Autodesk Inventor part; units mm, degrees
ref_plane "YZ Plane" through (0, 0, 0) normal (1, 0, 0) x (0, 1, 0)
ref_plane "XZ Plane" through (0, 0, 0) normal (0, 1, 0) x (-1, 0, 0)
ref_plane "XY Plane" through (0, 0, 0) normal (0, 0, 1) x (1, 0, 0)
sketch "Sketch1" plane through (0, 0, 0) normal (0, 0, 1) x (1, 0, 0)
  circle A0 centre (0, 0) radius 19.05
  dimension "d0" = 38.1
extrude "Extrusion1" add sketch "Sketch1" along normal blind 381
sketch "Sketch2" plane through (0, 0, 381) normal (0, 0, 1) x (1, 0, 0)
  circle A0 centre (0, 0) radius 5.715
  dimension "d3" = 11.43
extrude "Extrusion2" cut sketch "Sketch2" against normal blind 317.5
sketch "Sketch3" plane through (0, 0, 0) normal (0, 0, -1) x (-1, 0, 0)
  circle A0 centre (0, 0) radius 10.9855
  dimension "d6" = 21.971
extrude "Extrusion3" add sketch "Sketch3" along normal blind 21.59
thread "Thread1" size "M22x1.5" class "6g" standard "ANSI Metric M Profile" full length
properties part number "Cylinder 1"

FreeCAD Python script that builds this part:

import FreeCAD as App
import Part
import Sketcher
Q = App.Units.Quantity

doc = App.newDocument("Part")
body = doc.addObject("PartDesign::Body", "Body")

sketch1 = body.newObject("Sketcher::SketchObject", "Sketch")
sketch1.AttachmentSupport = (doc.getObject("XY_Plane"), [""])
sketch1.MapMode = "FlatFace"
sketch1.addGeometry(Part.Circle(App.Vector(0, 0, 0), App.Vector(0, 0, 1), 19), False)
sketch1.addConstraint([
    Sketcher.Constraint("Coincident", 0, 3, -1, 1),
    Sketcher.Constraint("Diameter", 0, Q("1.5 in")),
])
pad1 = body.newObject("PartDesign::Pad", "Pad")
pad1.Profile = sketch1
pad1.Length = Q("15 in")

sketch2 = body.newObject("Sketcher::SketchObject", "Sketch001")
sketch2.AttachmentSupport = (doc.getObject("XY_Plane"), [""])
sketch2.MapMode = "FlatFace"
sketch2.AttachmentOffset = App.Placement(App.Vector(0, 0, 15 * 25.4), App.Rotation())
sketch2.addGeometry(Part.Circle(App.Vector(0, 0, 0), App.Vector(0, 0, 1), 6), False)
sketch2.addConstraint([
    Sketcher.Constraint("Coincident", 0, 3, -1, 1),
    Sketcher.Constraint("Diameter", 0, Q("0.45 in")),
])
pocket1 = body.newObject("PartDesign::Pocket", "Pocket")
pocket1.Profile = sketch2
pocket1.Length = Q("12.5 in")

sketch3 = body.newObject("Sketcher::SketchObject", "Sketch002")
sketch3.AttachmentSupport = (doc.getObject("XY_Plane"), [""])
sketch3.MapMode = "FlatFace"
sketch3.addGeometry(Part.Circle(App.Vector(0, 0, 0), App.Vector(0, 0, 1), 11), False)
sketch3.addConstraint([
    Sketcher.Constraint("Coincident", 0, 3, -1, 1),
    Sketcher.Constraint("Diameter", 0, Q("0.865 in")),
])
pad2 = body.newObject("PartDesign::Pad", "Pad001")
pad2.Profile = sketch3
pad2.Length = Q("0.85 in")
pad2.Reversed = True

doc.recompute()
